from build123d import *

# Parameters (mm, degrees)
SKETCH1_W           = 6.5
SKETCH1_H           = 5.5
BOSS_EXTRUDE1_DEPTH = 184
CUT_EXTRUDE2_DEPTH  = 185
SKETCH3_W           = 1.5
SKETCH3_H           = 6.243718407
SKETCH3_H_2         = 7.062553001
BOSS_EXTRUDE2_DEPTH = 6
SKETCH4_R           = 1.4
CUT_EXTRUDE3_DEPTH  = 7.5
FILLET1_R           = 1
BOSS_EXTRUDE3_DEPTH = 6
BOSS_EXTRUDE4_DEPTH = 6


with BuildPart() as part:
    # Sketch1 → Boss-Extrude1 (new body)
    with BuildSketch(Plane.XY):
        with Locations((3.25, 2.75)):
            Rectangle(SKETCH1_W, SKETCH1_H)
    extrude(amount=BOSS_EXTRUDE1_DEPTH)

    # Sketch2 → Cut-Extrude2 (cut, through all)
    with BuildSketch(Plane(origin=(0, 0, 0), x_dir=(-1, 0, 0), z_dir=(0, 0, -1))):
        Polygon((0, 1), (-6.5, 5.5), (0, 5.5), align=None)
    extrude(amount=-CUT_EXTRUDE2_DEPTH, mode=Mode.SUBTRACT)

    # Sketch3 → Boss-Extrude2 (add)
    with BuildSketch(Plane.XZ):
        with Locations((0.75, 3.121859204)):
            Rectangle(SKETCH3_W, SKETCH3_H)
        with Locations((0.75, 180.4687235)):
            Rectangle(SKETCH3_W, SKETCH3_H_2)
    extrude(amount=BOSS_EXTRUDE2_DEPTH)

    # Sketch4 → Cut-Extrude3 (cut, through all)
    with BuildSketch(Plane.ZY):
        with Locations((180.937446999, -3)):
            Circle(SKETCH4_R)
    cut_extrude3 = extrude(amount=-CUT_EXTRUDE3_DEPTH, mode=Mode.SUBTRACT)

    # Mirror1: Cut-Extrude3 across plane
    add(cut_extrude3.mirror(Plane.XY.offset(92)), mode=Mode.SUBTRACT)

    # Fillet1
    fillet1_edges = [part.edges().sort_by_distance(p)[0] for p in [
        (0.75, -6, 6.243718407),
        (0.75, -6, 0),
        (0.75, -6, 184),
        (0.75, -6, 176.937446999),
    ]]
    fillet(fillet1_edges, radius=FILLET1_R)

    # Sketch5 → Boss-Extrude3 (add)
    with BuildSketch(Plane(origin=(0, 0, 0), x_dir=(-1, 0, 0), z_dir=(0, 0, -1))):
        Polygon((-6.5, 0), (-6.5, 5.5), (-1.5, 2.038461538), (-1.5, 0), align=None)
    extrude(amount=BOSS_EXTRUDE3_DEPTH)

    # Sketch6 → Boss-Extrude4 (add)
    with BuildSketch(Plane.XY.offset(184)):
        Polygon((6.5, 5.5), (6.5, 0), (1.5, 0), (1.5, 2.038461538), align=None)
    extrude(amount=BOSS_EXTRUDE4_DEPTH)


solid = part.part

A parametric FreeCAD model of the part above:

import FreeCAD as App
import Part
import Sketcher
Q = App.Units.Quantity


def edges_at(feature, points):
    """Names of the edges that pass closest to the given points."""
    edges = feature.Shape.Edges
    near = lambda p: min(range(len(edges)), key=lambda i: edges[i].distToShape(Part.Vertex(*p))[0])
    return sorted({f"Edge{near(p) + 1}" for p in points})


def add_polygon(sketch, points):
    """Adds a closed chain of lines whose ends are joined by coincident constraints."""
    first, n = sketch.GeometryCount, len(points)
    for a, b in zip(points, points[1:] + points[:1]):
        sketch.addGeometry(Part.LineSegment(App.Vector(*a, 0), App.Vector(*b, 0)), False)
    for i in range(n):
        sketch.addConstraint(Sketcher.Constraint("Coincident", first + i, 2, first + (i + 1) % n, 1))

doc = App.newDocument("Part")
params = doc.addObject("Spreadsheet::Sheet", "Params")
for row, (alias, value) in enumerate([
    ("sketch1_width", "6.5 mm"),
    ("sketch1_height", "5.5 mm"),
    ("pad1_length", "184 mm"),
    ("sketch2_width", "6.5 mm"),
    ("sketch2_height", "4.5 mm"),
    ("sketch3_width", "1.5 mm"),
    ("pad2_length", "6 mm"),
    ("sketch4_diameter", "2.8 mm"),
    ("fillet_radius", "1 mm"),
    ("sketch5_width", "5 mm"),
    ("sketch5_height", "5.5 mm"),
    ("pad3_length", "6 mm"),
    ("sketch6_width", "5 mm"),
    ("sketch6_height", "5.5 mm"),
    ("pad4_length", "6 mm"),
], start=1):
    params.set(f"A{row}", alias)
    params.set(f"B{row}", "=" + value)
    params.setAlias(f"B{row}", alias)

body = doc.addObject("PartDesign::Body", "Body")

sketch1 = body.newObject("Sketcher::SketchObject", "Sketch")
sketch1.AttachmentSupport = (doc.getObject("XY_Plane"), [""])
sketch1.MapMode = "FlatFace"
add_polygon(sketch1, [(0, 5.5), (0, 0), (6.5, 0), (6.5, 5.5)])
sketch1.addConstraint(Sketcher.Constraint("Vertical", 0))
sketch1.addConstraint(Sketcher.Constraint("Horizontal", 1))
sketch1.addConstraint(Sketcher.Constraint("Vertical", 2))
sketch1.addConstraint(Sketcher.Constraint("Horizontal", 3))
sketch1.addConstraint(Sketcher.Constraint("Coincident", 0, 2, -1, 1))
sketch1.addConstraint(Sketcher.Constraint("DistanceX", 1, 1, 1, 2, Q("6.5 mm")))
sketch1.addConstraint(Sketcher.Constraint("DistanceY", 0, 2, 0, 1, Q("5.5 mm")))
sketch1.setExpression("Constraints[9]", "Params.sketch1_width")
sketch1.setExpression("Constraints[10]", "Params.sketch1_height")
pad1 = body.newObject("PartDesign::Pad", "Pad")
pad1.Profile = sketch1
pad1.setExpression("Length", "Params.pad1_length")

sketch2 = body.newObject("Sketcher::SketchObject", "Sketch001")
sketch2.AttachmentSupport = (doc.getObject("XY_Plane"), [""])
sketch2.MapMode = "FlatFace"
add_polygon(sketch2, [(6.5, 5.5), (0, 1), (0, 5.5)])
sketch2.addConstraint(Sketcher.Constraint("Vertical", 1))
sketch2.addConstraint(Sketcher.Constraint("Horizontal", 2))
sketch2.addConstraint(Sketcher.Constraint("PointOnObject", 0, 2, -2))
sketch2.addConstraint(Sketcher.Constraint("DistanceX", 2, 1, 2, 2, Q("6.5 mm")))
sketch2.addConstraint(Sketcher.Constraint("DistanceY", 1, 1, 1, 2, Q("4.5 mm")))
sketch2.addConstraint(Sketcher.Constraint("DistanceY", -1, 1, 0, 2, Q("1 mm")))
sketch2.setExpression("Constraints[6]", "Params.sketch2_width")
sketch2.setExpression("Constraints[7]", "Params.sketch2_height")
pocket1 = body.newObject("PartDesign::Pocket", "Pocket")
pocket1.Profile = sketch2
pocket1.Type = "ThroughAll"
pocket1.Reversed = True

sketch3 = body.newObject("Sketcher::SketchObject", "Sketch002")
sketch3.AttachmentSupport = (doc.getObject("XZ_Plane"), [""])
sketch3.MapMode = "FlatFace"
add_polygon(sketch3, [(0, 6.243718), (0, 0), (1.5, 0), (1.5, 6.243718)])
add_polygon(sketch3, [(0, 184), (0, 176.937447), (1.5, 176.937447), (1.5, 184)])
sketch3.addConstraint(Sketcher.Constraint("Vertical", 0))
sketch3.addConstraint(Sketcher.Constraint("Horizontal", 1))
sketch3.addConstraint(Sketcher.Constraint("Vertical", 2))
sketch3.addConstraint(Sketcher.Constraint("Horizontal", 3))
sketch3.addConstraint(Sketcher.Constraint("Vertical", 4))
sketch3.addConstraint(Sketcher.Constraint("Horizontal", 5))
sketch3.addConstraint(Sketcher.Constraint("Vertical", 6))
sketch3.addConstraint(Sketcher.Constraint("Horizontal", 7))
sketch3.addConstraint(Sketcher.Constraint("Coincident", 0, 2, -1, 1))
sketch3.addConstraint(Sketcher.Constraint("PointOnObject", 4, 2, -2))
sketch3.addConstraint(Sketcher.Constraint("Vertical", 2, 2, 5, 2))
sketch3.addConstraint(Sketcher.Constraint("DistanceX", 1, 1, 1, 2, Q("1.5 mm")))
sketch3.addConstraint(Sketcher.Constraint("DistanceY", -1, 1, 6, 2, Q("184 mm")))
sketch3.addConstraint(Sketcher.Constraint("DistanceY", 0, 2, 0, 1, Q("6.243718 mm")))
sketch3.addConstraint(Sketcher.Constraint("DistanceY", 4, 2, 4, 1, Q("7.062553 mm")))
sketch3.setExpression("Constraints[19]", "Params.sketch3_width")
pad2 = body.newObject("PartDesign::Pad", "Pad001")
pad2.Profile = sketch3
pad2.setExpression("Length", "Params.pad2_length")

sketch4 = body.newObject("Sketcher::SketchObject", "Sketch003")
sketch4.AttachmentSupport = (doc.getObject("YZ_Plane"), [""])
sketch4.MapMode = "FlatFace"
sketch4.addGeometry(Part.Circle(App.Vector(-3, 180.937447, 0), App.Vector(0, 0, 1), 1.4), False)
sketch4.addConstraint(Sketcher.Constraint("Diameter", 0, Q("2.8 mm")))
sketch4.addConstraint(Sketcher.Constraint("DistanceX", 0, 3, -1, 1, Q("3 mm")))
sketch4.addConstraint(Sketcher.Constraint("DistanceY", -1, 1, 0, 3, Q("180.937447 mm")))
sketch4.setExpression("Constraints[0]", "Params.sketch4_diameter")
pocket2 = body.newObject("PartDesign::Pocket", "Pocket001")
pocket2.Profile = sketch4
pocket2.Type = "ThroughAll"
pocket2.Reversed = True
doc.recompute()

datumplane = body.newObject("PartDesign::Plane", "DatumPlane")
datumplane.AttachmentSupport = (doc.getObject("XY_Plane"), [""])
datumplane.MapMode = "FlatFace"
datumplane.AttachmentOffset = App.Placement(App.Vector(0, 0, 92), App.Rotation())
mirrored = body.newObject("PartDesign::Mirrored", "Mirrored")
mirrored.Originals = [pocket2]
mirrored.MirrorPlane = (datumplane, [""])
body.Tip = mirrored
doc.recompute()

fillet = body.newObject("PartDesign::Fillet", "Fillet")
fillet.Base = (mirrored, edges_at(mirrored, [
    (0.75, -6, 6.244),
    (0.75, -6, 0),
    (0.75, -6, 184),
    (0.75, -6, 176.937),
]))
fillet.setExpression("Radius", "Params.fillet_radius")

sketch5 = body.newObject("Sketcher::SketchObject", "Sketch004")
sketch5.AttachmentSupport = (doc.getObject("XY_Plane"), [""])
sketch5.MapMode = "FlatFace"
add_polygon(sketch5, [(6.5, 5.5), (6.5, 0), (1.5, 0), (1.5, 2.038462)])
sketch5.addConstraint(Sketcher.Constraint("Vertical", 0))
sketch5.addConstraint(Sketcher.Constraint("Horizontal", 1))
sketch5.addConstraint(Sketcher.Constraint("Vertical", 2))
sketch5.addConstraint(Sketcher.Constraint("PointOnObject", 0, 2, -1))
sketch5.addConstraint(Sketcher.Constraint("DistanceX", 1, 2, 1, 1, Q("5 mm")))
sketch5.addConstraint(Sketcher.Constraint("DistanceY", 0, 2, 0, 1, Q("5.5 mm")))
sketch5.addConstraint(Sketcher.Constraint("DistanceX", -1, 1, 0, 2, Q("6.5 mm")))
sketch5.addConstraint(Sketcher.Constraint("DistanceY", 2, 1, 2, 2, Q("2.038462 mm")))
sketch5.setExpression("Constraints[8]", "Params.sketch5_width")
sketch5.setExpression("Constraints[9]", "Params.sketch5_height")
pad3 = body.newObject("PartDesign::Pad", "Pad002")
pad3.Profile = sketch5
pad3.setExpression("Length", "Params.pad3_length")
pad3.Reversed = True

sketch6 = body.newObject("Sketcher::SketchObject", "Sketch005")
sketch6.AttachmentSupport = (doc.getObject("XY_Plane"), [""])
sketch6.MapMode = "FlatFace"
sketch6.AttachmentOffset = App.Placement(App.Vector(0, 0, 184), App.Rotation())
add_polygon(sketch6, [(6.5, 0), (6.5, 5.5), (1.5, 2.038462), (1.5, 0)])
sketch6.addConstraint(Sketcher.Constraint("Vertical", 0))
sketch6.addConstraint(Sketcher.Constraint("Vertical", 2))
sketch6.addConstraint(Sketcher.Constraint("Horizontal", 3))
sketch6.addConstraint(Sketcher.Constraint("PointOnObject", 2, 2, -1))
sketch6.addConstraint(Sketcher.Constraint("DistanceX", 3, 1, 3, 2, Q("5 mm")))
sketch6.addConstraint(Sketcher.Constraint("DistanceY", 0, 1, 0, 2, Q("5.5 mm")))
sketch6.addConstraint(Sketcher.Constraint("DistanceX", -1, 1, 0, 2, Q("6.5 mm")))
sketch6.addConstraint(Sketcher.Constraint("DistanceY", 2, 2, 2, 1, Q("2.038462 mm")))
sketch6.setExpression("Constraints[8]", "Params.sketch6_width")
sketch6.setExpression("Constraints[9]", "Params.sketch6_height")
pad4 = body.newObject("PartDesign::Pad", "Pad003")
pad4.Profile = sketch6
pad4.setExpression("Length", "Params.pad4_length")

doc.recompute()
